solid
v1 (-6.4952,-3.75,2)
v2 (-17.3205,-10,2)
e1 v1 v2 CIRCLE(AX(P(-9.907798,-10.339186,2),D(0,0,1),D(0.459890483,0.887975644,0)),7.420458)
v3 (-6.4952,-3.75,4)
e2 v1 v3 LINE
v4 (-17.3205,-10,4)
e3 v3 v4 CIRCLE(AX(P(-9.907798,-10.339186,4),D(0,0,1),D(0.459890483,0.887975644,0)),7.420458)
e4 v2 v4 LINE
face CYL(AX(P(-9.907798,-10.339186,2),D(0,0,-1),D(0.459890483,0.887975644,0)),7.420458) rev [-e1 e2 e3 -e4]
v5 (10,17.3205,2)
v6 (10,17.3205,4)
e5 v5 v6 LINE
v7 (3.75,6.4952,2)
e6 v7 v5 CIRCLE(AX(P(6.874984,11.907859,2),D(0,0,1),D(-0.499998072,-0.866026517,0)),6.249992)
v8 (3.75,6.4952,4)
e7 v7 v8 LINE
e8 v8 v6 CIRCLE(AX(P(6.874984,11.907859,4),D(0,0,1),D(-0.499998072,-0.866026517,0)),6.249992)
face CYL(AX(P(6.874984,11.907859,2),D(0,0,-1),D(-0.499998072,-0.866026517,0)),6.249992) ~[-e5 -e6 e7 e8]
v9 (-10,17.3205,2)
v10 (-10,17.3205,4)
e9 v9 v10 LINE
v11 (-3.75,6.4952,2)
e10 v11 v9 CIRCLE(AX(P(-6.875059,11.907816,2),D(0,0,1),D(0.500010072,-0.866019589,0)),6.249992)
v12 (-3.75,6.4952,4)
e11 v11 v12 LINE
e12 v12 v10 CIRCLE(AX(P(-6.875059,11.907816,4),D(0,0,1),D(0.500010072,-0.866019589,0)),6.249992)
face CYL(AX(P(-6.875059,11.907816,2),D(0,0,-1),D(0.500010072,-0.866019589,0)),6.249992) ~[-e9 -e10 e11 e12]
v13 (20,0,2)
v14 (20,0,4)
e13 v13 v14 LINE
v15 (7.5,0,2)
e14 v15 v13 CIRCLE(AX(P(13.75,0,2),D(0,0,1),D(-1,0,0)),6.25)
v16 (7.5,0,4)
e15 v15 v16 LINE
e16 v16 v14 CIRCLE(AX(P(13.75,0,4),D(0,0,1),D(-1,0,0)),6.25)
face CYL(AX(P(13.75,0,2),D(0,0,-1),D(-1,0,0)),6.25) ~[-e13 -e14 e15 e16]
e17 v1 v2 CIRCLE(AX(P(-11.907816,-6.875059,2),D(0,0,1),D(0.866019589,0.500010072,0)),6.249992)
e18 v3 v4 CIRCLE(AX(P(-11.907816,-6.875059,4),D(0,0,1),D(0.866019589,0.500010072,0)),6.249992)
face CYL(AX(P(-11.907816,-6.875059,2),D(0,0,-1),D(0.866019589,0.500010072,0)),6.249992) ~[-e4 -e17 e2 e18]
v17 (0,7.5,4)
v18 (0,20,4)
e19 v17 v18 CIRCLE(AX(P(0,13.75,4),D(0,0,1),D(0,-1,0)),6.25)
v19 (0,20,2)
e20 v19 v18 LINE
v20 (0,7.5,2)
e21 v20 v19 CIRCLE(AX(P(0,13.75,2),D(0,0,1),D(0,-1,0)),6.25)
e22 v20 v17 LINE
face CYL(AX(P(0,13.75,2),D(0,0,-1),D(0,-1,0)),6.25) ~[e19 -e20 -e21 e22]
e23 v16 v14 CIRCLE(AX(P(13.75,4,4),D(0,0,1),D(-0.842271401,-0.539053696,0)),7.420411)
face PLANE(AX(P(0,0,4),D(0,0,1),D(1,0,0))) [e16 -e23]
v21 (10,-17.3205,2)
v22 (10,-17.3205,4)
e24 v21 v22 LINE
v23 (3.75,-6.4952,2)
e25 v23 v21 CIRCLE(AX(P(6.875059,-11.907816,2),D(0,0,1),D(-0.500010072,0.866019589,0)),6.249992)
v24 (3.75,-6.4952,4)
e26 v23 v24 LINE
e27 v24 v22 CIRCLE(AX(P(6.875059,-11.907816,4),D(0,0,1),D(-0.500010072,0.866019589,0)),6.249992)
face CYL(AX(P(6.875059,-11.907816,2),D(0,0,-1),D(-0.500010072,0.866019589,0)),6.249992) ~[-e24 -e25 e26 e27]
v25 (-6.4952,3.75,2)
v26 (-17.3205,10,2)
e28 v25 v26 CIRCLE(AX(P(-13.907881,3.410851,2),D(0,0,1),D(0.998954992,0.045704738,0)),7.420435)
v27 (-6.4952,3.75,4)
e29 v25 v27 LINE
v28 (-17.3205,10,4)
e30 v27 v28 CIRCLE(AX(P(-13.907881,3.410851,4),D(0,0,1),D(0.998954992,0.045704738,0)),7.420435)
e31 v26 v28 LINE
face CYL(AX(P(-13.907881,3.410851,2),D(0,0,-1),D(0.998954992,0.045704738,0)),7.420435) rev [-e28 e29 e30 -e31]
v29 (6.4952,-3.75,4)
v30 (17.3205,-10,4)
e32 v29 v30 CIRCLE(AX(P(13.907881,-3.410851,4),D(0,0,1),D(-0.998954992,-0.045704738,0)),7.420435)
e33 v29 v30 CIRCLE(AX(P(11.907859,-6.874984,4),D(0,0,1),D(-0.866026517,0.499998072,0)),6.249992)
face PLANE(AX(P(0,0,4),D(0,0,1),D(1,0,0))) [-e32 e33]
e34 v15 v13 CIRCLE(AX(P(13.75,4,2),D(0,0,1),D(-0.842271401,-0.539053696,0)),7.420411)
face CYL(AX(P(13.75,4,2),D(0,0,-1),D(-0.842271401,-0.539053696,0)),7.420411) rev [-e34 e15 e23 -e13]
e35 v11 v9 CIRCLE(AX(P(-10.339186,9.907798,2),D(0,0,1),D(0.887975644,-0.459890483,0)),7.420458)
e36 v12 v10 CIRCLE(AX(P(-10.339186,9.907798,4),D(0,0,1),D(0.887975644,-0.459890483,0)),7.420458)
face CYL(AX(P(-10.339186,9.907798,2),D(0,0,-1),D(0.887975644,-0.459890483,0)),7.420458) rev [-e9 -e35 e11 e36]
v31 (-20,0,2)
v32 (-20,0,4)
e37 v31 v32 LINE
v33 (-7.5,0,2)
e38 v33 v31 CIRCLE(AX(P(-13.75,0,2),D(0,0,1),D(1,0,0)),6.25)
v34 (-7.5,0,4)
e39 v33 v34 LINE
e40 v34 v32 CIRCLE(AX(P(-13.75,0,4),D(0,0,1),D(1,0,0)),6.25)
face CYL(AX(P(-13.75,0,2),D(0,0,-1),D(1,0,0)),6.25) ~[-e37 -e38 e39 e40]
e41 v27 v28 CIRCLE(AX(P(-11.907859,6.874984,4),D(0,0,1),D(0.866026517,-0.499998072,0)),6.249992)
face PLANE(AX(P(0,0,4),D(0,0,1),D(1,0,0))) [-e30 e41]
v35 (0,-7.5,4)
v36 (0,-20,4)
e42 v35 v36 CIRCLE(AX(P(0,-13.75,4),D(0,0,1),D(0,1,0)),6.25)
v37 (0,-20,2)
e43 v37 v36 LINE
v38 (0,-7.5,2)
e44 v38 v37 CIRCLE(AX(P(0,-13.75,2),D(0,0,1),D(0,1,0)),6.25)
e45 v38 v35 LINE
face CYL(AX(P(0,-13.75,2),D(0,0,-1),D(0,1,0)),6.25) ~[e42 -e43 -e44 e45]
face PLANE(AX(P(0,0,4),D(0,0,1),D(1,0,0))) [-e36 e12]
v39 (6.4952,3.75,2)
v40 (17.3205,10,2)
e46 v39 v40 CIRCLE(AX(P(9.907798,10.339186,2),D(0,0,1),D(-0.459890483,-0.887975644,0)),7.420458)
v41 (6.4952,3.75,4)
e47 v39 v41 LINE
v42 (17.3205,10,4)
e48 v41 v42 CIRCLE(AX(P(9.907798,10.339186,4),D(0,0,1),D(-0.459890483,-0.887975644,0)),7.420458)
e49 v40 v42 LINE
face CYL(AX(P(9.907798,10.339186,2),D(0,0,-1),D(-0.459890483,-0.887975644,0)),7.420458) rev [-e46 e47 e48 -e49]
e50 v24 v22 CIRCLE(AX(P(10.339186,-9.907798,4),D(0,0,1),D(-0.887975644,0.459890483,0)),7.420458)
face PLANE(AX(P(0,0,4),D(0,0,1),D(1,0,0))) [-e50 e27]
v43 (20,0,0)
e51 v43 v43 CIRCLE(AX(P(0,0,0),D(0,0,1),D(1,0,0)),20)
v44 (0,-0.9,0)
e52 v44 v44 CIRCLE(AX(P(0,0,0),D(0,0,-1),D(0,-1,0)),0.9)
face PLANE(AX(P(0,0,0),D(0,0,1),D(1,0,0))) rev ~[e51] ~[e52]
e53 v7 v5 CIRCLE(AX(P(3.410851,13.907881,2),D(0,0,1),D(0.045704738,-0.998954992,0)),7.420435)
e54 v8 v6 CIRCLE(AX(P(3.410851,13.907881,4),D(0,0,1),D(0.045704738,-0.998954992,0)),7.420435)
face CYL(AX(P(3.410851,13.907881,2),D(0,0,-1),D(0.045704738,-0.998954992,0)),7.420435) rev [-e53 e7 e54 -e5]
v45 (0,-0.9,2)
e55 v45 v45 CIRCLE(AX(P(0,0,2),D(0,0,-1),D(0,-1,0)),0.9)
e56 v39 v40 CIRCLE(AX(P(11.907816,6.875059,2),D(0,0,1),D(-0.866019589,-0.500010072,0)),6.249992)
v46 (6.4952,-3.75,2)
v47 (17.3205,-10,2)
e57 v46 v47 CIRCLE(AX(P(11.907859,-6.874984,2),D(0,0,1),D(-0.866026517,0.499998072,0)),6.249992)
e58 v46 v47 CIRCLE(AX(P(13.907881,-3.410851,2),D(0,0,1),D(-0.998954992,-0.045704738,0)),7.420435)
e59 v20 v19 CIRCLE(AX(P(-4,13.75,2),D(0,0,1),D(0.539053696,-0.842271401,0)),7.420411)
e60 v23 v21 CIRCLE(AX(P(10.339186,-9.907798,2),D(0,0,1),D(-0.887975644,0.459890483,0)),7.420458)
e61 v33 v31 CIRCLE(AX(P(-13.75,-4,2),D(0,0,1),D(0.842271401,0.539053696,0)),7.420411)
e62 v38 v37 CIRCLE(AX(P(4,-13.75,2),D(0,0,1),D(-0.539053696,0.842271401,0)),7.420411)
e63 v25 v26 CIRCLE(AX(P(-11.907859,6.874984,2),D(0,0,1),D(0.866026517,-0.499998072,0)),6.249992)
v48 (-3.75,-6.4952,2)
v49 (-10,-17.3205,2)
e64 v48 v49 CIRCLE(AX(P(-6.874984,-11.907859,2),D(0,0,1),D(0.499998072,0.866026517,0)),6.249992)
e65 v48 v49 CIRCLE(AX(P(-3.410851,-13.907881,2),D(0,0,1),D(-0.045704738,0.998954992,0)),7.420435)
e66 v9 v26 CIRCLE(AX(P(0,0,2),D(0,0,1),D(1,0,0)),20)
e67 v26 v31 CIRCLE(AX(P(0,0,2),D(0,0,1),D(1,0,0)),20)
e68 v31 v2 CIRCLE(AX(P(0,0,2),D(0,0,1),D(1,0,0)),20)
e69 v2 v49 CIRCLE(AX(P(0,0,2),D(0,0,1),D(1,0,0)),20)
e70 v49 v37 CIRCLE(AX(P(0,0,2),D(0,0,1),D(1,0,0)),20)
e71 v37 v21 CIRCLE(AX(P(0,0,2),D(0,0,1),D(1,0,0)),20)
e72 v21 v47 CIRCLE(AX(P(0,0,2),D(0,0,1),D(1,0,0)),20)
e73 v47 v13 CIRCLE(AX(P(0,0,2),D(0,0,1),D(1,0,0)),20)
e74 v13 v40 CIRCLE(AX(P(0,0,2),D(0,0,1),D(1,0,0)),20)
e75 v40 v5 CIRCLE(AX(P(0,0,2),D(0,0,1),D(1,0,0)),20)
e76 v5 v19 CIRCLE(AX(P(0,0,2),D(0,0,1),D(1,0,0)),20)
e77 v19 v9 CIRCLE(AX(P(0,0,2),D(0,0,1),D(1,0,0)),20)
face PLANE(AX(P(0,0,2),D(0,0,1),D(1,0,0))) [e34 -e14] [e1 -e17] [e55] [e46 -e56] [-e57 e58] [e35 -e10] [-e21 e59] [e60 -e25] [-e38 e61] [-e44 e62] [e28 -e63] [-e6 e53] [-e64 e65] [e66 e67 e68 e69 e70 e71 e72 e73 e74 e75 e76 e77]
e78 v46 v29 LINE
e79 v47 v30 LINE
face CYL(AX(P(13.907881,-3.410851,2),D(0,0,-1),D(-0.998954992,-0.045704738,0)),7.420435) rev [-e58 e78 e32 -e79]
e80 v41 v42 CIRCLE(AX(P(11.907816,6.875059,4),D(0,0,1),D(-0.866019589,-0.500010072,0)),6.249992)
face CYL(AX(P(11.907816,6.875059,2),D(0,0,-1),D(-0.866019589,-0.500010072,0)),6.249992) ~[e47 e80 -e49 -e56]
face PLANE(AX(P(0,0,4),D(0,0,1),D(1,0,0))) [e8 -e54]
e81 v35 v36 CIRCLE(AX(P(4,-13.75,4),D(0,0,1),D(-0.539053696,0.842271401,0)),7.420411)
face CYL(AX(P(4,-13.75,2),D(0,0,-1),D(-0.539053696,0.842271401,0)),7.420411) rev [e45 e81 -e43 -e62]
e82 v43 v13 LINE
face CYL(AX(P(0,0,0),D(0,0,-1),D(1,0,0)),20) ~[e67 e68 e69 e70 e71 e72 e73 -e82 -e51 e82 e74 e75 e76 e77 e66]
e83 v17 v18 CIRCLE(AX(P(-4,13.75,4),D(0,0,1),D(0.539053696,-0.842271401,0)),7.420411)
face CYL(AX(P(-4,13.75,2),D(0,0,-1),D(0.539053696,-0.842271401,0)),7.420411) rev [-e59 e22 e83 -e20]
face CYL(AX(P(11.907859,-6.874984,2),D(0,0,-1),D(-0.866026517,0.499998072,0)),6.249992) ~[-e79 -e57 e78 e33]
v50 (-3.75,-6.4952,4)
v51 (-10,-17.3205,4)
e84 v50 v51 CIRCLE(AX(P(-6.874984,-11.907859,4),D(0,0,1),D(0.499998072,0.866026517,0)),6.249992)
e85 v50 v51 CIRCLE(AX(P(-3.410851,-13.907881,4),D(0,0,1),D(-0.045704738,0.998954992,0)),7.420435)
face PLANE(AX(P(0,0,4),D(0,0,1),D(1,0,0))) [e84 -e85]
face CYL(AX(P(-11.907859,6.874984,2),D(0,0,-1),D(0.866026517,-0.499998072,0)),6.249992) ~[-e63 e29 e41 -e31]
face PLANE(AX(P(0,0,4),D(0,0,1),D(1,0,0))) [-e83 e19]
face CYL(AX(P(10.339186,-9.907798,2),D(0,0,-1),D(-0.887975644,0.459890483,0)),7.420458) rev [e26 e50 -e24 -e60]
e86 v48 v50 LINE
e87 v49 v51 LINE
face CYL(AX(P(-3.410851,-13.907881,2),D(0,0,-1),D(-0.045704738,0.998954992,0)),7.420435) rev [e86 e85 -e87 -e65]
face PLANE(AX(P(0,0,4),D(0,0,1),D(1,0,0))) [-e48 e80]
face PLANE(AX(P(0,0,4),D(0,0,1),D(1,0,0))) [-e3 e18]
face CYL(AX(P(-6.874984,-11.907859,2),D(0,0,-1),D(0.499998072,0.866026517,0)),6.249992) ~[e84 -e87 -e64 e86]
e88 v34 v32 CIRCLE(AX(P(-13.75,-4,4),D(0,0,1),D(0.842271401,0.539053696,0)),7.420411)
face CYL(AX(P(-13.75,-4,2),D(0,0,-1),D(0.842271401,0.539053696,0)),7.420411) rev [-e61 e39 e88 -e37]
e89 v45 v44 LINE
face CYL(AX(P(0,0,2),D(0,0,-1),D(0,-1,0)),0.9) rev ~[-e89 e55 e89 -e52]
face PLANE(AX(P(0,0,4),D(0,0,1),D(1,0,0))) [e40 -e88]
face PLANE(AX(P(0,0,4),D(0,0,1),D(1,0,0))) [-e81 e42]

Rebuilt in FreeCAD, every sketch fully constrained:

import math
import FreeCAD as App
import Part
import Sketcher
Q = App.Units.Quantity

doc = App.newDocument("Part")
body = doc.addObject("PartDesign::Body", "Body")

sketch1 = body.newObject("Sketcher::SketchObject", "Sketch")
sketch1.AttachmentSupport = (doc.getObject("XY_Plane"), [""])
sketch1.MapMode = "FlatFace"
sketch1.addGeometry(Part.Circle(App.Vector(0, 0, 0), App.Vector(0, 0, 1), 20), False)
sketch1.addConstraint([
    Sketcher.Constraint("Coincident", 0, 3, -1, 1),
    Sketcher.Constraint("Diameter", 0, Q("40 mm")),
])
pad1 = body.newObject("PartDesign::Pad", "Pad")
pad1.Profile = sketch1
pad1.Length = 2

sketch2 = body.newObject("Sketcher::SketchObject", "Sketch001")
sketch2.AttachmentSupport = (doc.getObject("XY_Plane"), [""])
sketch2.MapMode = "FlatFace"
sketch2.AttachmentOffset = App.Placement(App.Vector(0, 0, 2), App.Rotation())
sketch2.addGeometry([
    Part.ArcOfCircle(Part.Circle(App.Vector(14, 4, 0), App.Vector(0, 0, 1), 7), math.radians(-147), math.radians(-33)),
    Part.ArcOfCircle(Part.Circle(App.Vector(14, 0, 0), App.Vector(0, 0, 1), 6), math.radians(180), math.radians(360)),
    Part.ArcOfCircle(Part.Circle(App.Vector(10, 10, 0), App.Vector(0, 0, 1), 7), math.radians(-117), math.radians(-3)),
    Part.ArcOfCircle(Part.Circle(App.Vector(12, 7, 0), App.Vector(0, 0, 1), 6), math.radians(-150), math.radians(30)),
    Part.ArcOfCircle(Part.Circle(App.Vector(14, -3, 0), App.Vector(0, 0, 1), 7), math.radians(-177), math.radians(-63)),
    Part.ArcOfCircle(Part.Circle(App.Vector(12, -7, 0), App.Vector(0, 0, 1), 6), math.radians(150), math.radians(330)),
    Part.ArcOfCircle(Part.Circle(App.Vector(3, 14, 0), App.Vector(0, 0, 1), 7), math.radians(-87), math.radians(27)),
    Part.ArcOfCircle(Part.Circle(App.Vector(7, 12, 0), App.Vector(0, 0, 1), 6), math.radians(-120), math.radians(60)),
    Part.ArcOfCircle(Part.Circle(App.Vector(10, -10, 0), App.Vector(0, 0, 1), 7), math.radians(153), math.radians(267)),
    Part.ArcOfCircle(Part.Circle(App.Vector(7, -12, 0), App.Vector(0, 0, 1), 6), math.radians(120), math.radians(300)),
    Part.ArcOfCircle(Part.Circle(App.Vector(-4, 14, 0), App.Vector(0, 0, 1), 7), math.radians(-57), math.radians(57)),
    Part.ArcOfCircle(Part.Circle(App.Vector(0, 14, 0), App.Vector(0, 0, 1), 6), math.radians(-90), math.radians(90)),
    Part.ArcOfCircle(Part.Circle(App.Vector(4, -14, 0), App.Vector(0, 0, 1), 7), math.radians(123), math.radians(237)),
    Part.ArcOfCircle(Part.Circle(App.Vector(0, -14, 0), App.Vector(0, 0, 1), 6), math.radians(90), math.radians(270)),
    Part.ArcOfCircle(Part.Circle(App.Vector(-10, 10, 0), App.Vector(0, 0, 1), 7), math.radians(-27), math.radians(87)),
    Part.ArcOfCircle(Part.Circle(App.Vector(-7, 12, 0), App.Vector(0, 0, 1), 6), math.radians(-60), math.radians(120)),
    Part.ArcOfCircle(Part.Circle(App.Vector(-3, -14, 0), App.Vector(0, 0, 1), 7), math.radians(93), math.radians(207)),
    Part.ArcOfCircle(Part.Circle(App.Vector(-7, -12, 0), App.Vector(0, 0, 1), 6), math.radians(60), math.radians(240)),
    Part.ArcOfCircle(Part.Circle(App.Vector(-14, 3, 0), App.Vector(0, 0, 1), 7), math.radians(3), math.radians(117)),
    Part.ArcOfCircle(Part.Circle(App.Vector(-12, 7, 0), App.Vector(0, 0, 1), 6), math.radians(-30), math.radians(150)),
    Part.ArcOfCircle(Part.Circle(App.Vector(-10, -10, 0), App.Vector(0, 0, 1), 7), math.radians(63), math.radians(177)),
    Part.ArcOfCircle(Part.Circle(App.Vector(-12, -7, 0), App.Vector(0, 0, 1), 6), math.radians(30), math.radians(210)),
    Part.ArcOfCircle(Part.Circle(App.Vector(-14, -4, 0), App.Vector(0, 0, 1), 7), math.radians(33), math.radians(147)),
    Part.ArcOfCircle(Part.Circle(App.Vector(-14, 0, 0), App.Vector(0, 0, 1), 6), math.radians(0), math.radians(180)),
], False)
sketch2.addConstraint([
    Sketcher.Constraint("Coincident", 0, 1, 1, 1),
    Sketcher.Constraint("Coincident", 1, 2, 0, 2),
    Sketcher.Constraint("Coincident", 2, 1, 3, 1),
    Sketcher.Constraint("Coincident", 3, 2, 2, 2),
    Sketcher.Constraint("Coincident", 4, 1, 5, 1),
    Sketcher.Constraint("Coincident", 5, 2, 4, 2),
    Sketcher.Constraint("Coincident", 6, 1, 7, 1),
    Sketcher.Constraint("Coincident", 7, 2, 6, 2),
    Sketcher.Constraint("Coincident", 8, 1, 9, 1),
    Sketcher.Constraint("Coincident", 9, 2, 8, 2),
    Sketcher.Constraint("Coincident", 10, 1, 11, 1),
    Sketcher.Constraint("Coincident", 11, 2, 10, 2),
    Sketcher.Constraint("Coincident", 12, 1, 13, 1),
    Sketcher.Constraint("Coincident", 13, 2, 12, 2),
    Sketcher.Constraint("Coincident", 14, 1, 15, 1),
    Sketcher.Constraint("Coincident", 15, 2, 14, 2),
    Sketcher.Constraint("Coincident", 16, 1, 17, 1),
    Sketcher.Constraint("Coincident", 17, 2, 16, 2),
    Sketcher.Constraint("Coincident", 18, 1, 19, 1),
    Sketcher.Constraint("Coincident", 19, 2, 18, 2),
    Sketcher.Constraint("Coincident", 20, 1, 21, 1),
    Sketcher.Constraint("Coincident", 21, 2, 20, 2),
    Sketcher.Constraint("Coincident", 22, 1, 23, 1),
    Sketcher.Constraint("Coincident", 23, 2, 22, 2),
    Sketcher.Constraint("Equal", 0, 2),
    Sketcher.Constraint("Equal", 1, 3),
    Sketcher.Constraint("Equal", 2, 4),
    Sketcher.Constraint("Equal", 3, 5),
    Sketcher.Constraint("Equal", 4, 6),
    Sketcher.Constraint("Equal", 5, 7),
    Sketcher.Constraint("Equal", 6, 8),
    Sketcher.Constraint("Equal", 7, 9),
    Sketcher.Constraint("Equal", 8, 10),
    Sketcher.Constraint("Equal", 9, 11),
    Sketcher.Constraint("Equal", 10, 12),
    Sketcher.Constraint("Equal", 11, 13),
    Sketcher.Constraint("Equal", 12, 14),
    Sketcher.Constraint("Equal", 13, 15),
    Sketcher.Constraint("Equal", 14, 16),
    Sketcher.Constraint("Equal", 15, 17),
    Sketcher.Constraint("Equal", 16, 18),
    Sketcher.Constraint("Equal", 17, 19),
    Sketcher.Constraint("Equal", 18, 20),
    Sketcher.Constraint("Equal", 19, 21),
    Sketcher.Constraint("Equal", 20, 22),
    Sketcher.Constraint("Equal", 21, 23),
    Sketcher.Constraint("Symmetric", 10, 3, 12, 3, -1, 1),
    Sketcher.Constraint("Symmetric", 11, 3, 13, 3, -1, 1),
    Sketcher.Constraint("Symmetric", 8, 3, 14, 3, -1, 1),
    Sketcher.Constraint("Symmetric", 9, 3, 15, 3, -1, 1),
    Sketcher.Constraint("Symmetric", 6, 3, 16, 3, -1, 1),
    Sketcher.Constraint("Symmetric", 7, 3, 17, 3, -1, 1),
    Sketcher.Constraint("Symmetric", 4, 3, 18, 3, -1, 1),
    Sketcher.Constraint("Symmetric", 5, 3, 19, 3, -1, 1),
    Sketcher.Constraint("Symmetric", 2, 3, 20, 3, -1, 1),
    Sketcher.Constraint("Symmetric", 3, 3, 21, 3, -1, 1),
    Sketcher.Constraint("Symmetric", 0, 3, 22, 3, -1, 1),
    Sketcher.Constraint("Symmetric", 1, 3, 23, 3, -1, 1),
    Sketcher.Constraint("Symmetric", 7, 3, 15, 3, -2),
    Sketcher.Constraint("Symmetric", 3, 3, 19, 3, -2),
    Sketcher.Constraint("PointOnObject", 1, 3, -1),
    Sketcher.Constraint("PointOnObject", 11, 3, -2),
    Sketcher.Constraint("PointOnObject", 0, 1, -1),
    Sketcher.Constraint("PointOnObject", 1, 2, -1),
    Sketcher.Constraint("PointOnObject", 10, 1, -2),
    Sketcher.Constraint("PointOnObject", 11, 2, -2),
    Sketcher.Constraint("Horizontal", 6, 1, 14, 1),
    Sketcher.Constraint("Horizontal", 7, 2, 15, 2),
    Sketcher.Constraint("Horizontal", 2, 1, 18, 1),
    Sketcher.Constraint("Horizontal", 3, 2, 19, 2),
    Sketcher.Constraint("DistanceY", -1, 1, 0, 3, Q("4 mm")),
    Sketcher.Constraint("DistanceX", 2, 3, 4, 3, Q("4 mm")),
    Sketcher.Constraint("DistanceY", 14, 3, 6, 3, Q("4 mm")),
    Sketcher.Constraint("Radius", 1, Q("6.25 mm")),
    Sketcher.Constraint("DistanceX", -1, 1, 1, 2, Q("20 mm")),
    Sketcher.Constraint("DistanceY", -1, 1, 3, 2, Q("10 mm")),
    Sketcher.Constraint("DistanceX", -1, 1, 7, 2, Q("10 mm")),
    Sketcher.Constraint("DistanceY", -1, 1, 11, 2, Q("20 mm")),
    Sketcher.Constraint("DistanceX", 2, 3, 3, 3, Q("2 mm")),
    Sketcher.Constraint("DistanceY", 7, 3, 6, 3, Q("2 mm")),
    Sketcher.Constraint("DistanceX", 6, 3, 2, 3, Q("6.497 mm")),
    Sketcher.Constraint("DistanceY", 8, 3, 4, 3, Q("6.497 mm")),
])
pad2 = body.newObject("PartDesign::Pad", "Pad001")
pad2.Profile = sketch2
pad2.Length = 2

sketch3 = body.newObject("Sketcher::SketchObject", "Sketch002")
sketch3.AttachmentSupport = (doc.getObject("XY_Plane"), [""])
sketch3.MapMode = "FlatFace"
sketch3.AttachmentOffset = App.Placement(App.Vector(0, 0, 2), App.Rotation())
sketch3.addGeometry(Part.Circle(App.Vector(0, 0, 0), App.Vector(0, 0, 1), 0.9), False)
sketch3.addConstraint([
    Sketcher.Constraint("Coincident", 0, 3, -1, 1),
    Sketcher.Constraint("Diameter", 0, Q("1.8 mm")),
])
doc.recompute()
hole = body.newObject("PartDesign::Hole", "Hole")
hole.Profile = sketch3
hole.ThreadType = "None"
hole.Diameter = 1.8
hole.DepthType = "Dimension"
hole.Depth = 8.8
hole.DrillPoint = "Angled"
hole.DrillPointAngle = 118

doc.recompute()
